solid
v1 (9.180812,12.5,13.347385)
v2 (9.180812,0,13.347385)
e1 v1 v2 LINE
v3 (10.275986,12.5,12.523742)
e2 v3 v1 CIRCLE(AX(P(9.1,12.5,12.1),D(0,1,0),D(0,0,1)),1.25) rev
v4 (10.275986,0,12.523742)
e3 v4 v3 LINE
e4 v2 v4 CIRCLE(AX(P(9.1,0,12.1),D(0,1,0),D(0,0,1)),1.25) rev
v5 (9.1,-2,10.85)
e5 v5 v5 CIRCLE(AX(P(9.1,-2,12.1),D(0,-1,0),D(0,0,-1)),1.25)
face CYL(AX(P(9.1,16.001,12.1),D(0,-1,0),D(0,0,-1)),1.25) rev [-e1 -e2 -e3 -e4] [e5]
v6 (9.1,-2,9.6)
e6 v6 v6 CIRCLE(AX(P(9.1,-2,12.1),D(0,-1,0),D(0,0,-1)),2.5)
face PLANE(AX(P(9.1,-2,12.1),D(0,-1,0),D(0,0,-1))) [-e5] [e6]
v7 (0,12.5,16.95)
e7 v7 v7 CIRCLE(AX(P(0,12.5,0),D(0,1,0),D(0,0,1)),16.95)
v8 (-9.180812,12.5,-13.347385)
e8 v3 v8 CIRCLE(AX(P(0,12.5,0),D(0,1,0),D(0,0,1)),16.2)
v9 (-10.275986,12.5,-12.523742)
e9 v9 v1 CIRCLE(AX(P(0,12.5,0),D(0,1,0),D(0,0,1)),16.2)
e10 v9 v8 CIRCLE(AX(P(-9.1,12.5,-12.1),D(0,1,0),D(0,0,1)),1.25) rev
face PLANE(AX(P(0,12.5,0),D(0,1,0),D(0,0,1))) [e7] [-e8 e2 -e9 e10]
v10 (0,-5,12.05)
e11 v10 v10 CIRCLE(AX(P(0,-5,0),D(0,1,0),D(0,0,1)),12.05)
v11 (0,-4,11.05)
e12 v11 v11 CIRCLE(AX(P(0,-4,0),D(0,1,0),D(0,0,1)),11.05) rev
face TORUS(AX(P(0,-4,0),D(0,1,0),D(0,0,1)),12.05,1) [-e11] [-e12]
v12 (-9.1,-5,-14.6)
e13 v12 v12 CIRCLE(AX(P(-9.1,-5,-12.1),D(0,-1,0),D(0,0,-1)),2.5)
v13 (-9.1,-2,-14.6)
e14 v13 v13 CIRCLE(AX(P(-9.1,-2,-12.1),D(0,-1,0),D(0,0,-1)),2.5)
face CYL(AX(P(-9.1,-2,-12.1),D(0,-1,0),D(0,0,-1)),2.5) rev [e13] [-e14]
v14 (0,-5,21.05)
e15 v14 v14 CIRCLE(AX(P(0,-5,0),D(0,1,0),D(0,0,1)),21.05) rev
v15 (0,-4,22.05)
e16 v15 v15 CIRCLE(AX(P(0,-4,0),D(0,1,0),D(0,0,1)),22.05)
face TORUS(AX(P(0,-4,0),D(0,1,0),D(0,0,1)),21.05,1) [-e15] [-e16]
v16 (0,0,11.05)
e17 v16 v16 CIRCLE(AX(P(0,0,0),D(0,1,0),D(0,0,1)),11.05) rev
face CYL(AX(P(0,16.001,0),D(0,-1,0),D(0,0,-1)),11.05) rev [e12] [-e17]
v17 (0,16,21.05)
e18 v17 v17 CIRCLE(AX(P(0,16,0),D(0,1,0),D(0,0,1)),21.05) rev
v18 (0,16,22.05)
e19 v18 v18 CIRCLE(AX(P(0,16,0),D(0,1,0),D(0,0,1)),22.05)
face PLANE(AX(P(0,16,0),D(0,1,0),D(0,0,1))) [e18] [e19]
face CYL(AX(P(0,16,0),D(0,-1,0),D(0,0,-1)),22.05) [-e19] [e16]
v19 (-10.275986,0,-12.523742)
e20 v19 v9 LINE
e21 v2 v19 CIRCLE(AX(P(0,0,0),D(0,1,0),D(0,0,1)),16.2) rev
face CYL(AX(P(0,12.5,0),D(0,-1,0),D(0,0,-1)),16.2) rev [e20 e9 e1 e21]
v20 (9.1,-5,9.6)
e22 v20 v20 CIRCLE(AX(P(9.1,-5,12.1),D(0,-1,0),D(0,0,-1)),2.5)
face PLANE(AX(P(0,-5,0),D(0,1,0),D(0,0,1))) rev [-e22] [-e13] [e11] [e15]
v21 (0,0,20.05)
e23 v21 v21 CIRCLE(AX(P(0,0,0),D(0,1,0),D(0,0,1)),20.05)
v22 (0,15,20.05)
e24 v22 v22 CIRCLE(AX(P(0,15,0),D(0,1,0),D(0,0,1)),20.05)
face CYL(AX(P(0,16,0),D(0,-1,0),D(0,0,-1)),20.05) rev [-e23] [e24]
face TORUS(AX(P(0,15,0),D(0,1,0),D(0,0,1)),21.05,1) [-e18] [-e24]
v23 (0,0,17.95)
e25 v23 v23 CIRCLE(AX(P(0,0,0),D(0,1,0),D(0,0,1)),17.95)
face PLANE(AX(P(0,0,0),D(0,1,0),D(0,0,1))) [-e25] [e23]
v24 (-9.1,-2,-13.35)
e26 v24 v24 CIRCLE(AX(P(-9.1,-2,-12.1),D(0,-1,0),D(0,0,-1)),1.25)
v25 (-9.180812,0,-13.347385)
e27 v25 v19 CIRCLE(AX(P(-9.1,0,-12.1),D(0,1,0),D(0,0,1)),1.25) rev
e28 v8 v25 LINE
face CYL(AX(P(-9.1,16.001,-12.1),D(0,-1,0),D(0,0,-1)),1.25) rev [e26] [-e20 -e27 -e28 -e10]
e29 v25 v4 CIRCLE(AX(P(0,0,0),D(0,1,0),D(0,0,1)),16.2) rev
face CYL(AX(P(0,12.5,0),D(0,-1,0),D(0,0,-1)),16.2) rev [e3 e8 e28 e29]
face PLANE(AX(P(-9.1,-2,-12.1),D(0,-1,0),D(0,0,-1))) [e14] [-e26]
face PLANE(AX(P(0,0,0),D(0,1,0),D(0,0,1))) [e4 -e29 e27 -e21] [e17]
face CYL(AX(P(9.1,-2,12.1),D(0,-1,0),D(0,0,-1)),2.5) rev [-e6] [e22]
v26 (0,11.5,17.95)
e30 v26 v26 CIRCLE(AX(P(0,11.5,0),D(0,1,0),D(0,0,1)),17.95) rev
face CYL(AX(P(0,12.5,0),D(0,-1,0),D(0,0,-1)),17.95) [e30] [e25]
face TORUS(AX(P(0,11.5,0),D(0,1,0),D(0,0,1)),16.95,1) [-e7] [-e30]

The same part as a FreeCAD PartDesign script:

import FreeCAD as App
import Part
import Sketcher
Q = App.Units.Quantity


def edges_at(feature, points):
    """Names of the edges that pass closest to the given points."""
    edges = feature.Shape.Edges
    near = lambda p: min(range(len(edges)), key=lambda i: edges[i].distToShape(Part.Vertex(*p))[0])
    return sorted({f"Edge{near(p) + 1}" for p in points})

doc = App.newDocument("Part")
body = doc.addObject("PartDesign::Body", "Body")

sketch1 = doc.addObject("Sketcher::SketchObject", "Sketch")
body.addObject(sketch1)
sketch1.AttachmentSupport = (doc.XZ_Plane, [""])
sketch1.MapMode = "FlatFace"
sketch1.addGeometry([
    Part.Circle(App.Vector(0, 0, 0), App.Vector(0, 0, 1), 22),
    Part.Circle(App.Vector(0, 0, 0), App.Vector(0, 0, 1), 20),
], False)
sketch1.addConstraint([
    Sketcher.Constraint("Coincident", 0, 3, -1, 1),
    Sketcher.Constraint("Coincident", 1, 3, -1, 1),
    Sketcher.Constraint("Diameter", 0, Q("44.1 mm")),
    Sketcher.Constraint("Diameter", 1, Q("40.1 mm")),
])
pad1 = doc.addObject("PartDesign::Pad", "Pad")
body.addObject(pad1)
pad1.Profile = sketch1
pad1.Length = 16
pad1.Reversed = True
body2 = doc.addObject("PartDesign::Body", "Body001")

sketch2 = doc.addObject("Sketcher::SketchObject", "Sketch001")
body2.addObject(sketch2)
sketch2.AttachmentSupport = (doc.getObject("XZ_Plane001"), [""])
sketch2.MapMode = "FlatFace"
sketch2.addGeometry([
    Part.Circle(App.Vector(0, 0, 0), App.Vector(0, 0, 1), 18),
    Part.Circle(App.Vector(0, 0, 0), App.Vector(0, 0, 1), 16),
], False)
sketch2.addConstraint([
    Sketcher.Constraint("Coincident", 0, 3, -1, 1),
    Sketcher.Constraint("Coincident", 1, 3, -1, 1),
    Sketcher.Constraint("Diameter", 0, Q("35.9 mm")),
    Sketcher.Constraint("Diameter", 1, Q("32.4 mm")),
])
pad2 = doc.addObject("PartDesign::Pad", "Pad001")
body2.addObject(pad2)
pad2.Profile = sketch2
pad2.Length = 12.5
pad2.Reversed = True
body.AllowCompound = True
doc.recompute()

boolean = doc.addObject("PartDesign::Boolean", "Boolean")
body.addObject(boolean)
boolean.Type = "Fuse"
boolean.addObjects([body2])

sketch3 = doc.addObject("Sketcher::SketchObject", "Sketch002")
body.addObject(sketch3)
sketch3.AttachmentSupport = (doc.XZ_Plane, [""])
sketch3.MapMode = "FlatFace"
sketch3.AttachmentOffset = App.Placement(App.Vector(0, 0, 5), App.Rotation())
sketch3.addGeometry(Part.Circle(App.Vector(0, 0, 0), App.Vector(0, 0, 1), 22), False)
sketch3.addConstraint([
    Sketcher.Constraint("Coincident", 0, 3, -1, 1),
    Sketcher.Constraint("Diameter", 0, Q("44.1 mm")),
])
pad3 = doc.addObject("PartDesign::Pad", "Pad002")
body.addObject(pad3)
pad3.Profile = sketch3
pad3.Length = 5
pad3.Reversed = True

sketch4 = doc.addObject("Sketcher::SketchObject", "Sketch003")
body.addObject(sketch4)
sketch4.AttachmentSupport = (doc.XZ_Plane, [""])
sketch4.MapMode = "FlatFace"
sketch4.AttachmentOffset = App.Placement(App.Vector(0, 0, 5), App.Rotation())
sketch4.addGeometry(Part.Circle(App.Vector(0, 0, 0), App.Vector(0, 0, 1), 11), False)
sketch4.addConstraint([
    Sketcher.Constraint("Coincident", 0, 3, -1, 1),
    Sketcher.Constraint("Diameter", 0, Q("22.1 mm")),
])
pocket1 = doc.addObject("PartDesign::Pocket", "Pocket")
body.addObject(pocket1)
pocket1.Profile = sketch4
pocket1.Type = "UpToFirst"

sketch5 = doc.addObject("Sketcher::SketchObject", "Sketch004")
body.addObject(sketch5)
sketch5.AttachmentSupport = (doc.XZ_Plane, [""])
sketch5.MapMode = "FlatFace"
sketch5.AttachmentOffset = App.Placement(App.Vector(0, 0, 5), App.Rotation())
sketch5.addGeometry(Part.Circle(App.Vector(9.1, 12.1, 0), App.Vector(0, 0, 1), 1.2), False)
sketch5.addConstraint([
    Sketcher.Constraint("Diameter", 0, Q("2.5 mm")),
    Sketcher.Constraint("DistanceX", -1, 1, 0, 3, Q("9.1 mm")),
    Sketcher.Constraint("DistanceY", -1, 1, 0, 3, Q("12.1 mm")),
])
pocket2 = doc.addObject("PartDesign::Pocket", "Pocket001")
body.addObject(pocket2)
pocket2.Profile = sketch5
pocket2.Length = 17.5

sketch6 = doc.addObject("Sketcher::SketchObject", "Sketch005")
body.addObject(sketch6)
sketch6.AttachmentSupport = (doc.XZ_Plane, [""])
sketch6.MapMode = "FlatFace"
sketch6.AttachmentOffset = App.Placement(App.Vector(0, 0, 5), App.Rotation())
sketch6.addGeometry(Part.Circle(App.Vector(-9.1, -12.1, 0), App.Vector(0, 0, 1), 1.2), False)
sketch6.addConstraint([
    Sketcher.Constraint("Diameter", 0, Q("2.5 mm")),
    Sketcher.Constraint("DistanceX", 0, 3, -1, 1, Q("9.1 mm")),
    Sketcher.Constraint("DistanceY", 0, 3, -1, 1, Q("12.1 mm")),
])
pocket3 = doc.addObject("PartDesign::Pocket", "Pocket002")
body.addObject(pocket3)
pocket3.Profile = sketch6
pocket3.Length = 17.5

sketch7 = doc.addObject("Sketcher::SketchObject", "Sketch006")
body.addObject(sketch7)
sketch7.AttachmentSupport = (doc.XZ_Plane, [""])
sketch7.MapMode = "FlatFace"
sketch7.AttachmentOffset = App.Placement(App.Vector(0, 0, 5), App.Rotation())
sketch7.addGeometry([
    Part.Circle(App.Vector(9.1, 12.1, 0), App.Vector(0, 0, 1), 2.5),
    Part.Circle(App.Vector(9.1, 12.1, 0), App.Vector(0, 0, 1), 1.2),
    Part.Circle(App.Vector(-9.1, -12.1, 0), App.Vector(0, 0, 1), 2.5),
    Part.Circle(App.Vector(-9.1, -12.1, 0), App.Vector(0, 0, 1), 1.2),
], False)
sketch7.addConstraint([
    Sketcher.Constraint("Coincident", 1, 3, 0, 3),
    Sketcher.Constraint("Coincident", 3, 3, 2, 3),
    Sketcher.Constraint("Equal", 0, 2),
    Sketcher.Constraint("Equal", 1, 3),
    Sketcher.Constraint("Symmetric", 0, 3, 2, 3, -1, 1),
    Sketcher.Constraint("Diameter", 0, Q("5 mm")),
    Sketcher.Constraint("Diameter", 1, Q("2.5 mm")),
    Sketcher.Constraint("DistanceX", -1, 1, 0, 3, Q("9.1 mm")),
    Sketcher.Constraint("DistanceY", -1, 1, 0, 3, Q("12.1 mm")),
])
pocket4 = doc.addObject("PartDesign::Pocket", "Pocket003")
body.addObject(pocket4)
pocket4.Profile = sketch7
pocket4.Length = 3
doc.recompute()

fillet = doc.addObject("PartDesign::Fillet", "Fillet")
body.addObject(fillet)
fillet.Base = (pocket4, edges_at(pocket4, [(0, -5, 11.05)]))
fillet.Radius = 1
doc.recompute()

fillet2 = doc.addObject("PartDesign::Fillet", "Fillet001")
body.addObject(fillet2)
fillet2.Base = (fillet, edges_at(fillet, [(0, -5, -22.05)]))
fillet2.Radius = 1
doc.recompute()

fillet3 = doc.addObject("PartDesign::Fillet", "Fillet002")
body.addObject(fillet3)
fillet3.Base = (fillet2, edges_at(fillet2, [(0, 12.5, -17.95), (0, 16, -20.05)]))
fillet3.Radius = 1

doc.recompute()
